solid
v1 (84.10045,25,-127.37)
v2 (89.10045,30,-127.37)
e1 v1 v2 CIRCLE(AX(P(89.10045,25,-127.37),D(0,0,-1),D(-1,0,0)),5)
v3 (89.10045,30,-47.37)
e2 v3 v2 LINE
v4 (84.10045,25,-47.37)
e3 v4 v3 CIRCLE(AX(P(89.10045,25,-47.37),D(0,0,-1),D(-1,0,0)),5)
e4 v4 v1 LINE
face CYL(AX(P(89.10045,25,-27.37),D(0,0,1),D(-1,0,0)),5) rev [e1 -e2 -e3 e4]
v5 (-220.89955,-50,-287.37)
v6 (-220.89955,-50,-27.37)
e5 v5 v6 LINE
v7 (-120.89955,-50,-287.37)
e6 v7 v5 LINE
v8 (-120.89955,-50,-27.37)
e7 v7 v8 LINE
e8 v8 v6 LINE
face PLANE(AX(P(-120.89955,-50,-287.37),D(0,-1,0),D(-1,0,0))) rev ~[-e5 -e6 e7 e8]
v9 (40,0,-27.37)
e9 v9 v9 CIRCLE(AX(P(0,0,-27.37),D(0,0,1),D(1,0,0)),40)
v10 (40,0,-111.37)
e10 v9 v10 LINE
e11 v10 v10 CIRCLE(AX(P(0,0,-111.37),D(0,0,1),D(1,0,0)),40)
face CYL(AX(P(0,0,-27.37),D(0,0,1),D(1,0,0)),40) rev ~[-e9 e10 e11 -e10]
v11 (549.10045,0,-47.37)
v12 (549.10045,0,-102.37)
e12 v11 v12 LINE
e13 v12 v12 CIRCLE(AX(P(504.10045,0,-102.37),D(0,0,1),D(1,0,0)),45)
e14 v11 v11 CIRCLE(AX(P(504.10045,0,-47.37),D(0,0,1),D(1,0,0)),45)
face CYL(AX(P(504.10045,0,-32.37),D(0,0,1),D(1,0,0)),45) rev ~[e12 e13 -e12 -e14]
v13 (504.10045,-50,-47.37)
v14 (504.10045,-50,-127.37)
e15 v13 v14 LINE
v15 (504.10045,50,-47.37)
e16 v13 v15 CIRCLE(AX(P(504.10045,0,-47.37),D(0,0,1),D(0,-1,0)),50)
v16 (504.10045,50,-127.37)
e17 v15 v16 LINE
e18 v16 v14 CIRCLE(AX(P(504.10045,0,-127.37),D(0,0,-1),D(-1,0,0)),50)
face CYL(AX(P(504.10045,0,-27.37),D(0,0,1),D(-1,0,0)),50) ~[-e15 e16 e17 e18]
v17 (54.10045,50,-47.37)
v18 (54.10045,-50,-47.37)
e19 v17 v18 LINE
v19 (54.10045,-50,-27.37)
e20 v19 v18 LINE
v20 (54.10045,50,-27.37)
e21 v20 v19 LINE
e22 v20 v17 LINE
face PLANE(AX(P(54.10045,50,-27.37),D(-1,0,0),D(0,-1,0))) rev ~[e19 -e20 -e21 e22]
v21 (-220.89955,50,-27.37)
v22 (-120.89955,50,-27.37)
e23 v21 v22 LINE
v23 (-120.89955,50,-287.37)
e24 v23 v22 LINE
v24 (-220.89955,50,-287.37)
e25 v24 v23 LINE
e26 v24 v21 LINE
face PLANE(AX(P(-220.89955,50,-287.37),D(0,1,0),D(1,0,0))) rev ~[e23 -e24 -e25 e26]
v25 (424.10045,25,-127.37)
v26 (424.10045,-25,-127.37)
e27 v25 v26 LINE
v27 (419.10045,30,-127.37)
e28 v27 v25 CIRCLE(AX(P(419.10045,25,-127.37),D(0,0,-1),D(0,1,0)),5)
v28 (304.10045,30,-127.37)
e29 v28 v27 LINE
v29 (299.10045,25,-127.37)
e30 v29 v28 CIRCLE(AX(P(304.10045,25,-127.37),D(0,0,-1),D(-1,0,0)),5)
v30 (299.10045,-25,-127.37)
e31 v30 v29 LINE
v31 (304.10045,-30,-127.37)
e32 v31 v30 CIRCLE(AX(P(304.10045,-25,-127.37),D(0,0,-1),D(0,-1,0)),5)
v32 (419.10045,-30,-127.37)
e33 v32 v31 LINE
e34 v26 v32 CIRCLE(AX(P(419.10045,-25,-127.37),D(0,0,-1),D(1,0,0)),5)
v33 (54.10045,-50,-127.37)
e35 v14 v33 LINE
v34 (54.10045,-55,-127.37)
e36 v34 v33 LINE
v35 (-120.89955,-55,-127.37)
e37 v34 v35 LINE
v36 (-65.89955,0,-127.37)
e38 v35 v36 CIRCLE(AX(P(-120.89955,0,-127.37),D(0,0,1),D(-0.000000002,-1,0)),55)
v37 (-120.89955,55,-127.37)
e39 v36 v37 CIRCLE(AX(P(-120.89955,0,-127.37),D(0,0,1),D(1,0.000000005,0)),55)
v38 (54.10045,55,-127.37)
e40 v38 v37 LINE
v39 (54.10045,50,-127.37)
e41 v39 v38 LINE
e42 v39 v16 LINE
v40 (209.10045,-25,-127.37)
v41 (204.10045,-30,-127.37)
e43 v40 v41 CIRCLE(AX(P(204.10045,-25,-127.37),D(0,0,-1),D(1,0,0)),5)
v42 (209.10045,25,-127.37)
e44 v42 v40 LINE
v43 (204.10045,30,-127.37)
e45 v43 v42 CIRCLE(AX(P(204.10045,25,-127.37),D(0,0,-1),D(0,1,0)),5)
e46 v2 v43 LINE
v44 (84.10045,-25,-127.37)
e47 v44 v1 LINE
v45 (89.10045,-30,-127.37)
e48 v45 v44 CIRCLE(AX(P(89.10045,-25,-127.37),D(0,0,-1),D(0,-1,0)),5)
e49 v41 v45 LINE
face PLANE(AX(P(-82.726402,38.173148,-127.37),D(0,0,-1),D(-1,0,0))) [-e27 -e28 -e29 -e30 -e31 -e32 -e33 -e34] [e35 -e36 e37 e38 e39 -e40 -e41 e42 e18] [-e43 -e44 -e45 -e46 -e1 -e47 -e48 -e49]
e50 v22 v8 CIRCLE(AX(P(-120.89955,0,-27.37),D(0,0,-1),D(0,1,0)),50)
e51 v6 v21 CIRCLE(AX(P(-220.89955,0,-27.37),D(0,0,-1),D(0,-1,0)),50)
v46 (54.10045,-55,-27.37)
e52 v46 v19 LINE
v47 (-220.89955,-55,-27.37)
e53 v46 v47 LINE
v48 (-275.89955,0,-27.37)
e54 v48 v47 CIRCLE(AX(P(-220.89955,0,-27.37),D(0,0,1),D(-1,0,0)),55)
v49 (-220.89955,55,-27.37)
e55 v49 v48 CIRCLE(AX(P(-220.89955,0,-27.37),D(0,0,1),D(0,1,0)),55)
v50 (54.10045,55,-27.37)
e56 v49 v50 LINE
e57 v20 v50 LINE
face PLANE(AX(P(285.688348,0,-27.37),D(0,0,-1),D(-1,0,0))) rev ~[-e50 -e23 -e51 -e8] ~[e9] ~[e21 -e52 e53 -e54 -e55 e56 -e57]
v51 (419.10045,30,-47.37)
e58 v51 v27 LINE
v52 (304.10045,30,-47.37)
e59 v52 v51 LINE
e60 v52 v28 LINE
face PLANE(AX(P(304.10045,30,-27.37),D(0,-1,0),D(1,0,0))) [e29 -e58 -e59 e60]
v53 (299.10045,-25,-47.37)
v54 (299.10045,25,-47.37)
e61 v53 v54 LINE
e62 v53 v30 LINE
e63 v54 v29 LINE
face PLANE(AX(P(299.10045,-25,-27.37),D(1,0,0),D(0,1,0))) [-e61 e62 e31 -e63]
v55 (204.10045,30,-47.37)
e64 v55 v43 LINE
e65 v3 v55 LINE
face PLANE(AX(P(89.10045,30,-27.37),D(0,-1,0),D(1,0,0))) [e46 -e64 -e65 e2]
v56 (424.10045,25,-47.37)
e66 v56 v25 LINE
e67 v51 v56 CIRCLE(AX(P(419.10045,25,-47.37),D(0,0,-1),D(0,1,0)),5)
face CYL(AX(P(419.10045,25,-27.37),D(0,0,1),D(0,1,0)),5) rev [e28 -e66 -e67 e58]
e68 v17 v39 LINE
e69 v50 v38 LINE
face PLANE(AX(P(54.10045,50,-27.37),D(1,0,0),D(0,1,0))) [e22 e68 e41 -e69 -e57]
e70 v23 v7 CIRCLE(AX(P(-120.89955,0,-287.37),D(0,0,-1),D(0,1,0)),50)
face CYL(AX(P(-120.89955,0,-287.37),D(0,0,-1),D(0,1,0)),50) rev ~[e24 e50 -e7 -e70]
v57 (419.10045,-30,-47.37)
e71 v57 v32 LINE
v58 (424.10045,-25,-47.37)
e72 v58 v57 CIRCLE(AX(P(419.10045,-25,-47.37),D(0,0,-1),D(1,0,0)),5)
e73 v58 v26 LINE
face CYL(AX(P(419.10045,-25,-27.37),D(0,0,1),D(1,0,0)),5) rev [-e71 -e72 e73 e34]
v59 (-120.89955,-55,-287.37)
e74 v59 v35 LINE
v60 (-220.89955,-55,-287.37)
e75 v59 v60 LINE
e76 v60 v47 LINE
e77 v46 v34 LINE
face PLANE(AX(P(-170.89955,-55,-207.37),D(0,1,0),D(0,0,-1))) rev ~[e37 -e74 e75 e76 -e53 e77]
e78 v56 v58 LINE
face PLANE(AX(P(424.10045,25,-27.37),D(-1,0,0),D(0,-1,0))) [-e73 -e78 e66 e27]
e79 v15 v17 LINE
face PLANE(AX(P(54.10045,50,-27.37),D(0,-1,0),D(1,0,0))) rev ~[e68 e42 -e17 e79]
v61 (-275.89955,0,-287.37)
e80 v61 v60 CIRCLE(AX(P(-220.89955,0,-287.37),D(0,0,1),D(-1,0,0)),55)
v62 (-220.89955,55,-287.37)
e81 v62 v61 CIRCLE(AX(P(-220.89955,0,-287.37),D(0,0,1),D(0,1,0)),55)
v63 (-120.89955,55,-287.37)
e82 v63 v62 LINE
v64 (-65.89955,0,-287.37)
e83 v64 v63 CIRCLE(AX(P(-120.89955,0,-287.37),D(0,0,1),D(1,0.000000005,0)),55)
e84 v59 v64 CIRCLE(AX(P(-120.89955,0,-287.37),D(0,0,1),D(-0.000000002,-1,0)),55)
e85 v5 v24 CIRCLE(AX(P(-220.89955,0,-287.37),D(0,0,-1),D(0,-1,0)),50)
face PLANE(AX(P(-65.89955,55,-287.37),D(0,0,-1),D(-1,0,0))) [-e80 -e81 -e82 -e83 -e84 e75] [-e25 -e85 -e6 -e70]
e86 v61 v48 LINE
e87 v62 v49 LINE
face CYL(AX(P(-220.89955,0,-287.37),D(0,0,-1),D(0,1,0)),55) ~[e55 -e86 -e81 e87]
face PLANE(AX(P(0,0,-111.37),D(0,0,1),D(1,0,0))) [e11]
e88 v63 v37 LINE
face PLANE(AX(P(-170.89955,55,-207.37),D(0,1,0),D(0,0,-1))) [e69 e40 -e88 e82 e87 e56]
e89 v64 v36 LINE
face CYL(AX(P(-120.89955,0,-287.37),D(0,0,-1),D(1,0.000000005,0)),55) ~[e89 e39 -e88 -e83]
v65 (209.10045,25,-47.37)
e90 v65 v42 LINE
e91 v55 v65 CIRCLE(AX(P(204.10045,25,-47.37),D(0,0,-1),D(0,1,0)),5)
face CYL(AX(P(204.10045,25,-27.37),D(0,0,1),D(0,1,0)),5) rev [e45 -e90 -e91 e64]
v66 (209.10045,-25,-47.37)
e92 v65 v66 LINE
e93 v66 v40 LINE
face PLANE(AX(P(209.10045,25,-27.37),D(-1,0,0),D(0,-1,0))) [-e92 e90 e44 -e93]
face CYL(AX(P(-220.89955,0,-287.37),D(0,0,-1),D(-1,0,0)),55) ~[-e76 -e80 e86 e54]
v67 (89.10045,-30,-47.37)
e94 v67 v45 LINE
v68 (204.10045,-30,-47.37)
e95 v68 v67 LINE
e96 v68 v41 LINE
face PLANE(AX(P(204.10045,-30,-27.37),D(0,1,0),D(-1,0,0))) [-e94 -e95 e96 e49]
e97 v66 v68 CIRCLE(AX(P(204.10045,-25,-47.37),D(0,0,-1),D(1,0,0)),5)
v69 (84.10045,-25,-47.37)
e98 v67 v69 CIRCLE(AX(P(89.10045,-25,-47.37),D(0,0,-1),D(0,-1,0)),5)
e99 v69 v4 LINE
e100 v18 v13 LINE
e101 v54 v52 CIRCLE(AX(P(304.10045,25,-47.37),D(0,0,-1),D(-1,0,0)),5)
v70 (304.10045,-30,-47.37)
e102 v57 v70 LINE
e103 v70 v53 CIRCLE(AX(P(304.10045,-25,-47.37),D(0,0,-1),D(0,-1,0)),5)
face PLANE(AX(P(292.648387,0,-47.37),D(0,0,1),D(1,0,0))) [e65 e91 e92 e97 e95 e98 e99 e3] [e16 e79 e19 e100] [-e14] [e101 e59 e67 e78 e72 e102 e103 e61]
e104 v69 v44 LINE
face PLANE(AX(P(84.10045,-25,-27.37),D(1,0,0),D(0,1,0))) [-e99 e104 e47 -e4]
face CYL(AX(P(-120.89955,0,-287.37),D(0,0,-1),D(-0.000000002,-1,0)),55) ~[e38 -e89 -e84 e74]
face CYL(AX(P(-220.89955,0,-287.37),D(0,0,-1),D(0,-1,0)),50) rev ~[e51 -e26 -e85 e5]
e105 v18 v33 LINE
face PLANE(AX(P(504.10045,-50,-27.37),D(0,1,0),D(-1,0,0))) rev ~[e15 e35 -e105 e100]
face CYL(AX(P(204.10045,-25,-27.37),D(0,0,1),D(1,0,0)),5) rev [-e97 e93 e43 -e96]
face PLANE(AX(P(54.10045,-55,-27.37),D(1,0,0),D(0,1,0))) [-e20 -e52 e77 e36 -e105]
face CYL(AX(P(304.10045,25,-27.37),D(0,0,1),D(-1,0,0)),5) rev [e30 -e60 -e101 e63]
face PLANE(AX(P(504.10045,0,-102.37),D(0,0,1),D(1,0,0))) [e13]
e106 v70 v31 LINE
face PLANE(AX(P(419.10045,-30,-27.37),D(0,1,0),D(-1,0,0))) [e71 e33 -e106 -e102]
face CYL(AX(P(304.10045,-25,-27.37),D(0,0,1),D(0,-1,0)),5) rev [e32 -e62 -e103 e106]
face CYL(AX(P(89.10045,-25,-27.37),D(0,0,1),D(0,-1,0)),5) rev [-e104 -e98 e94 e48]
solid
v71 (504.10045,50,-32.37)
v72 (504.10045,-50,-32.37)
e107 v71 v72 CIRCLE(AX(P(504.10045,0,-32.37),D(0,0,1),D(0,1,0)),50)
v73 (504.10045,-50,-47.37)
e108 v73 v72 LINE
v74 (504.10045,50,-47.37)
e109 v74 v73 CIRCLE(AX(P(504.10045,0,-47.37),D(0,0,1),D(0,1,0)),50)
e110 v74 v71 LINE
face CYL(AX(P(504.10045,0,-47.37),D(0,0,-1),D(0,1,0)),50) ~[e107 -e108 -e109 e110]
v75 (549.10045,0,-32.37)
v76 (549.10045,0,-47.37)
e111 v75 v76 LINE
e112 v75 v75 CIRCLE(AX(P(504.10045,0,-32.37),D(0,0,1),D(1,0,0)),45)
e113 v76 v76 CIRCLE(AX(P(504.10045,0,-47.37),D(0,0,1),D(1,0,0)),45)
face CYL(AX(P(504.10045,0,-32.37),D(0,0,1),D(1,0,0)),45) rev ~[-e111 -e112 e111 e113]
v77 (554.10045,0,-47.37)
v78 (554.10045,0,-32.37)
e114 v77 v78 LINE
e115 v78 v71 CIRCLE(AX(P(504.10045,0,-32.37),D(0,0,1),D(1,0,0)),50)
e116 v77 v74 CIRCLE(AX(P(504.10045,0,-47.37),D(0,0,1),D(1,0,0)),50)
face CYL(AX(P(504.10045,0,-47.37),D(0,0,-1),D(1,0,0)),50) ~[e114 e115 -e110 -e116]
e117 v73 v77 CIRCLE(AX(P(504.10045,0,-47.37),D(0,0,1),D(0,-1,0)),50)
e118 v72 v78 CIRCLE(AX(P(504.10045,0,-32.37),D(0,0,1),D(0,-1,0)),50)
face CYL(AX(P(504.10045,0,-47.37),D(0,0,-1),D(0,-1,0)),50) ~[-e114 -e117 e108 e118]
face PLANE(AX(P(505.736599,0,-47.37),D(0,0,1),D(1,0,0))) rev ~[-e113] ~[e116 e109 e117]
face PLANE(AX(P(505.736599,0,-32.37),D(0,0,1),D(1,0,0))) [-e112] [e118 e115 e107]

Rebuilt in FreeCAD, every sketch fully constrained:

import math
import FreeCAD as App
import Part
import Sketcher
from FreeCAD import Vector
Q = App.Units.Quantity

doc = App.newDocument("Part")
body = doc.addObject("PartDesign::Body", "Body")

sketch1 = doc.addObject("Sketcher::SketchObject", "Sketch")
body.addObject(sketch1)
sketch1.AttachmentSupport = (doc.YZ_Plane, [""])
sketch1.MapMode = "FlatFace"
sketch1.addGeometry(Part.LineSegment(Vector(50, 50, 0), Vector(50, 500, 0)), False)
sketch1.addGeometry(Part.ArcOfCircle(Part.Circle(Vector(0, 500, 0), Vector(0, 0, 1), 50), math.radians(0), math.radians(180)), False)
sketch1.addGeometry(Part.LineSegment(Vector(-50, 500, 0), Vector(-50, 50, 0)), False)
sketch1.addGeometry(Part.LineSegment(Vector(-50, 50, 0), Vector(-55, 50, 0)), False)
sketch1.addGeometry(Part.LineSegment(Vector(-55, 50, 0), Vector(-55, -280, 0)), False)
sketch1.addGeometry(Part.LineSegment(Vector(-55, -280, 0), Vector(55, -280, 0)), False)
sketch1.addGeometry(Part.LineSegment(Vector(55, -280, 0), Vector(55, 50, 0)), False)
sketch1.addGeometry(Part.LineSegment(Vector(55, 50, 0), Vector(50, 50, 0)), False)
sketch1.addConstraint(Sketcher.Constraint("Tangent", 0, 2, 1, 1))
sketch1.addConstraint(Sketcher.Constraint("Tangent", 1, 2, 2, 1))
sketch1.addConstraint(Sketcher.Constraint("Coincident", 2, 2, 3, 1))
sketch1.addConstraint(Sketcher.Constraint("Coincident", 3, 2, 4, 1))
sketch1.addConstraint(Sketcher.Constraint("Coincident", 4, 2, 5, 1))
sketch1.addConstraint(Sketcher.Constraint("Coincident", 5, 2, 6, 1))
sketch1.addConstraint(Sketcher.Constraint("Coincident", 6, 2, 7, 1))
sketch1.addConstraint(Sketcher.Constraint("Coincident", 7, 2, 0, 1))
sketch1.addConstraint(Sketcher.Constraint("Vertical", 0))
sketch1.addConstraint(Sketcher.Constraint("Vertical", 2))
sketch1.addConstraint(Sketcher.Constraint("Horizontal", 3))
sketch1.addConstraint(Sketcher.Constraint("Vertical", 4))
sketch1.addConstraint(Sketcher.Constraint("Horizontal", 5))
sketch1.addConstraint(Sketcher.Constraint("Vertical", 6))
sketch1.addConstraint(Sketcher.Constraint("Horizontal", 7))
sketch1.addConstraint(Sketcher.Constraint("Symmetric", 3, 2, 6, 2, -2))
sketch1.addConstraint(Sketcher.Constraint("PointOnObject", 1, 3, -2))
sketch1.addConstraint(Sketcher.Constraint("Radius", 1, Q("50 mm")))
sketch1.addConstraint(Sketcher.Constraint("DistanceX", 3, 2, 3, 1, Q("5 mm")))
sketch1.addConstraint(Sketcher.Constraint("DistanceY", 0, 1, 0, 2, Q("450 mm")))
sketch1.addConstraint(Sketcher.Constraint("DistanceY", 4, 2, 4, 1, Q("330 mm")))
sketch1.addConstraint(Sketcher.Constraint("DistanceY", -1, 1, 1, 3, Q("500 mm")))
pad1 = doc.addObject("PartDesign::Pad", "Pad")
body.addObject(pad1)
pad1.Profile = sketch1
pad1.Length = 100

sketch2 = doc.addObject("Sketcher::SketchObject", "Sketch001")
body.addObject(sketch2)
sketch2.AttachmentSupport = (doc.XZ_Plane, [""])
sketch2.MapMode = "FlatFace"
sketch2.AttachmentOffset = App.Placement(Vector(0, 0, -55), App.Rotation())
sketch2.addGeometry(Part.LineSegment(Vector(100, -280, 0), Vector(100, -70, 0)), False)
sketch2.addGeometry(Part.LineSegment(Vector(100, -70, 0), Vector(260, -70, 0)), False)
sketch2.addGeometry(Part.LineSegment(Vector(260, -70, 0), Vector(260, -280, 0)), False)
sketch2.addGeometry(Part.LineSegment(Vector(260, -280, 0), Vector(100, -280, 0)), False)
sketch2.addConstraint(Sketcher.Constraint("Coincident", 0, 2, 1, 1))
sketch2.addConstraint(Sketcher.Constraint("Coincident", 1, 2, 2, 1))
sketch2.addConstraint(Sketcher.Constraint("Coincident", 2, 2, 3, 1))
sketch2.addConstraint(Sketcher.Constraint("Coincident", 3, 2, 0, 1))
sketch2.addConstraint(Sketcher.Constraint("Vertical", 0))
sketch2.addConstraint(Sketcher.Constraint("Horizontal", 1))
sketch2.addConstraint(Sketcher.Constraint("Vertical", 2))
sketch2.addConstraint(Sketcher.Constraint("Horizontal", 3))
sketch2.addConstraint(Sketcher.Constraint("DistanceX", 1, 1, 1, 2, Q("160 mm")))
sketch2.addConstraint(Sketcher.Constraint("DistanceY", 0, 1, 0, 2, Q("210 mm")))
sketch2.addConstraint(Sketcher.Constraint("DistanceX", -1, 1, 0, 2, Q("100 mm")))
sketch2.addConstraint(Sketcher.Constraint("DistanceY", 0, 2, -1, 1, Q("70 mm")))
pad2 = doc.addObject("PartDesign::Pad", "Pad001")
body.addObject(pad2)
pad2.Profile = sketch2
pad2.Length = 110

sketch3 = doc.addObject("Sketcher::SketchObject", "Sketch002")
body.addObject(sketch3)
sketch3.AttachmentSupport = (doc.YZ_Plane, [""])
sketch3.MapMode = "FlatFace"
sketch3.AttachmentOffset = App.Placement(Vector(0, 0, 260), App.Rotation())
sketch3.addGeometry(Part.ArcOfCircle(Part.Circle(Vector(0, -225, 0), Vector(0, 0, 1), 55), math.radians(-90), math.radians(0)), False)
sketch3.addGeometry(Part.LineSegment(Vector(0, -280, 0), Vector(55, -280, 0)), False)
sketch3.addGeometry(Part.LineSegment(Vector(55, -280, 0), Vector(55, -225, 0)), False)
sketch3.addGeometry(Part.ArcOfCircle(Part.Circle(Vector(0, -225, 0), Vector(0, 0, 1), 55), math.radians(-180), math.radians(-90)), False)
sketch3.addGeometry(Part.LineSegment(Vector(-55, -225, 0), Vector(-55, -280, 0)), False)
sketch3.addGeometry(Part.LineSegment(Vector(-55, -280, 0), Vector(0, -280, 0)), False)
sketch3.addConstraint(Sketcher.Constraint("Tangent", 0, 1, 1, 1))
sketch3.addConstraint(Sketcher.Constraint("Coincident", 1, 2, 2, 1))
sketch3.addConstraint(Sketcher.Constraint("Tangent", 2, 2, 0, 2))
sketch3.addConstraint(Sketcher.Constraint("Tangent", 3, 1, 4, 1))
sketch3.addConstraint(Sketcher.Constraint("Coincident", 4, 2, 5, 1))
sketch3.addConstraint(Sketcher.Constraint("Tangent", 5, 2, 3, 2))
sketch3.addConstraint(Sketcher.Constraint("Horizontal", 1))
sketch3.addConstraint(Sketcher.Constraint("Vertical", 2))
sketch3.addConstraint(Sketcher.Constraint("Vertical", 4))
sketch3.addConstraint(Sketcher.Constraint("Horizontal", 5))
sketch3.addConstraint(Sketcher.Constraint("Coincident", 3, 3, 0, 3))
sketch3.addConstraint(Sketcher.Constraint("Equal", 0, 3))
sketch3.addConstraint(Sketcher.Constraint("PointOnObject", 0, 3, -2))
sketch3.addConstraint(Sketcher.Constraint("Radius", 0, Q("55 mm")))
sketch3.addConstraint(Sketcher.Constraint("DistanceY", 0, 3, -1, 1, Q("225 mm")))
pocket1 = doc.addObject("PartDesign::Pocket", "Pocket")
body.addObject(pocket1)
pocket1.Profile = sketch3
pocket1.Length = 260

sketch4 = doc.addObject("Sketcher::SketchObject", "Sketch003")
body.addObject(sketch4)
sketch4.AttachmentSupport = (doc.YZ_Plane, [""])
sketch4.MapMode = "FlatFace"
sketch4.AttachmentOffset = App.Placement(Vector(0, 0, 260), App.Rotation())
sketch4.addGeometry(Part.LineSegment(Vector(55, -70, 0), Vector(0, -70, 0)), False)
sketch4.addGeometry(Part.ArcOfCircle(Part.Circle(Vector(0, -125, 0), Vector(0, 0, 1), 55), math.radians(0), math.radians(90)), False)
sketch4.addGeometry(Part.LineSegment(Vector(55, -125, 0), Vector(55, -70, 0)), False)
sketch4.addGeometry(Part.LineSegment(Vector(0, -70, 0), Vector(-55, -70, 0)), False)
sketch4.addGeometry(Part.LineSegment(Vector(-55, -70, 0), Vector(-55, -125, 0)), False)
sketch4.addGeometry(Part.ArcOfCircle(Part.Circle(Vector(0, -125, 0), Vector(0, 0, 1), 55), math.radians(90), math.radians(180)), False)
sketch4.addConstraint(Sketcher.Constraint("Tangent", 0, 2, 1, 2))
sketch4.addConstraint(Sketcher.Constraint("Tangent", 1, 1, 2, 1))
sketch4.addConstraint(Sketcher.Constraint("Coincident", 2, 2, 0, 1))
sketch4.addConstraint(Sketcher.Constraint("Coincident", 3, 2, 4, 1))
sketch4.addConstraint(Sketcher.Constraint("Tangent", 4, 2, 5, 2))
sketch4.addConstraint(Sketcher.Constraint("Tangent", 5, 1, 3, 1))
sketch4.addConstraint(Sketcher.Constraint("Horizontal", 0))
sketch4.addConstraint(Sketcher.Constraint("Vertical", 2))
sketch4.addConstraint(Sketcher.Constraint("Horizontal", 3))
sketch4.addConstraint(Sketcher.Constraint("Vertical", 4))
sketch4.addConstraint(Sketcher.Constraint("Coincident", 5, 3, 1, 3))
sketch4.addConstraint(Sketcher.Constraint("Equal", 1, 5))
sketch4.addConstraint(Sketcher.Constraint("PointOnObject", 1, 3, -2))
sketch4.addConstraint(Sketcher.Constraint("Radius", 1, Q("55 mm")))
sketch4.addConstraint(Sketcher.Constraint("DistanceY", 1, 3, -1, 1, Q("125 mm")))
pocket2 = doc.addObject("PartDesign::Pocket", "Pocket001")
body.addObject(pocket2)
pocket2.Profile = sketch4
pocket2.Length = 160

sketch5 = doc.addObject("Sketcher::SketchObject", "Sketch004")
body.addObject(sketch5)
sketch5.AttachmentSupport = (doc.YZ_Plane, [""])
sketch5.MapMode = "FlatFace"
sketch5.addGeometry(Part.LineSegment(Vector(30, 200, 0), Vector(30, 85, 0)), False)
sketch5.addGeometry(Part.ArcOfCircle(Part.Circle(Vector(25, 85, 0), Vector(0, 0, 1), 5), math.radians(-90), math.radians(0)), False)
sketch5.addGeometry(Part.LineSegment(Vector(25, 80, 0), Vector(-25, 80, 0)), False)
sketch5.addGeometry(Part.ArcOfCircle(Part.Circle(Vector(-25, 85, 0), Vector(0, 0, 1), 5), math.radians(180), math.radians(270)), False)
sketch5.addGeometry(Part.LineSegment(Vector(-30, 85, 0), Vector(-30, 200, 0)), False)
sketch5.addGeometry(Part.ArcOfCircle(Part.Circle(Vector(-25, 200, 0), Vector(0, 0, 1), 5), math.radians(90), math.radians(180)), False)
sketch5.addGeometry(Part.LineSegment(Vector(-25, 205, 0), Vector(25, 205, 0)), False)
sketch5.addGeometry(Part.ArcOfCircle(Part.Circle(Vector(25, 200, 0), Vector(0, 0, 1), 5), math.radians(0), math.radians(90)), False)
sketch5.addGeometry(Part.LineSegment(Vector(-30, 300, 0), Vector(-30, 415, 0)), False)
sketch5.addGeometry(Part.ArcOfCircle(Part.Circle(Vector(-25, 415, 0), Vector(0, 0, 1), 5), math.radians(90), math.radians(180)), False)
sketch5.addGeometry(Part.LineSegment(Vector(-25, 420, 0), Vector(25, 420, 0)), False)
sketch5.addGeometry(Part.ArcOfCircle(Part.Circle(Vector(25, 415, 0), Vector(0, 0, 1), 5), math.radians(0), math.radians(90)), False)
sketch5.addGeometry(Part.LineSegment(Vector(30, 415, 0), Vector(30, 300, 0)), False)
sketch5.addGeometry(Part.ArcOfCircle(Part.Circle(Vector(25, 300, 0), Vector(0, 0, 1), 5), math.radians(-90), math.radians(0)), False)
sketch5.addGeometry(Part.LineSegment(Vector(25, 295, 0), Vector(-25, 295, 0)), False)
sketch5.addGeometry(Part.ArcOfCircle(Part.Circle(Vector(-25, 300, 0), Vector(0, 0, 1), 5), math.radians(180), math.radians(270)), False)
sketch5.addConstraint(Sketcher.Constraint("Tangent", 0, 2, 1, 2))
sketch5.addConstraint(Sketcher.Constraint("Tangent", 1, 1, 2, 1))
sketch5.addConstraint(Sketcher.Constraint("Tangent", 2, 2, 3, 2))
sketch5.addConstraint(Sketcher.Constraint("Tangent", 3, 1, 4, 1))
sketch5.addConstraint(Sketcher.Constraint("Tangent", 4, 2, 5, 2))
sketch5.addConstraint(Sketcher.Constraint("Tangent", 5, 1, 6, 1))
sketch5.addConstraint(Sketcher.Constraint("Tangent", 6, 2, 7, 2))
sketch5.addConstraint(Sketcher.Constraint("Tangent", 7, 1, 0, 1))
sketch5.addConstraint(Sketcher.Constraint("Tangent", 8, 2, 9, 2))
sketch5.addConstraint(Sketcher.Constraint("Tangent", 9, 1, 10, 1))
sketch5.addConstraint(Sketcher.Constraint("Tangent", 10, 2, 11, 2))
sketch5.addConstraint(Sketcher.Constraint("Tangent", 11, 1, 12, 1))
sketch5.addConstraint(Sketcher.Constraint("Tangent", 12, 2, 13, 2))
sketch5.addConstraint(Sketcher.Constraint("Tangent", 13, 1, 14, 1))
sketch5.addConstraint(Sketcher.Constraint("Tangent", 14, 2, 15, 2))
sketch5.addConstraint(Sketcher.Constraint("Tangent", 15, 1, 8, 1))
sketch5.addConstraint(Sketcher.Constraint("Vertical", 0))
sketch5.addConstraint(Sketcher.Constraint("Horizontal", 2))
sketch5.addConstraint(Sketcher.Constraint("Vertical", 4))
sketch5.addConstraint(Sketcher.Constraint("Horizontal", 6))
sketch5.addConstraint(Sketcher.Constraint("Vertical", 8))
sketch5.addConstraint(Sketcher.Constraint("Horizontal", 10))
sketch5.addConstraint(Sketcher.Constraint("Vertical", 12))
sketch5.addConstraint(Sketcher.Constraint("Horizontal", 14))
sketch5.addConstraint(Sketcher.Constraint("Equal", 1, 3))
sketch5.addConstraint(Sketcher.Constraint("Equal", 3, 5))
sketch5.addConstraint(Sketcher.Constraint("Equal", 5, 7))
sketch5.addConstraint(Sketcher.Constraint("Equal", 7, 9))
sketch5.addConstraint(Sketcher.Constraint("Equal", 9, 11))
sketch5.addConstraint(Sketcher.Constraint("Equal", 11, 13))
sketch5.addConstraint(Sketcher.Constraint("Equal", 13, 15))
sketch5.addConstraint(Sketcher.Constraint("Vertical", 5, 3, 9, 3))
sketch5.addConstraint(Sketcher.Constraint("Vertical", 7, 3, 11, 3))
sketch5.addConstraint(Sketcher.Constraint("Equal", 4, 8))
sketch5.addConstraint(Sketcher.Constraint("Radius", 1, Q("5 mm")))
sketch5.addConstraint(Sketcher.Constraint("DistanceX", 2, 2, 2, 1, Q("50 mm")))
sketch5.addConstraint(Sketcher.Constraint("DistanceY", 0, 2, 0, 1, Q("115 mm")))
sketch5.addConstraint(Sketcher.Constraint("DistanceX", -1, 1, 1, 3, Q("25 mm")))
sketch5.addConstraint(Sketcher.Constraint("DistanceY", -1, 1, 1, 3, Q("85 mm")))
sketch5.addConstraint(Sketcher.Constraint("DistanceY", -1, 1, 9, 3, Q("415 mm")))
pocket3 = doc.addObject("PartDesign::Pocket", "Pocket002")
body.addObject(pocket3)
pocket3.Profile = sketch5
pocket3.Length = 100
pocket3.Reversed = True
body2 = doc.addObject("PartDesign::Body", "Body001")
doc.recompute()

body.Placement = App.Placement(Vector(-13.739488, 0, 255.266203), App.Rotation(Vector(0, 1, 0), 86))
boolean = doc.addObject("PartDesign::Boolean", "Boolean")
body2.addObject(boolean)
boolean.Type = "Fuse"
boolean.addObjects([body])

sketch6 = doc.addObject("Sketcher::SketchObject", "Sketch005")
body2.addObject(sketch6)
sketch6.Placement = App.Placement(Vector(-17.82995, 0, 254.98017), App.Rotation(Vector(0.99756405, 0, 0.069756474), Vector(0, 1, 0), Vector(-0.069756474, 0, 0.99756405), "ZXY"))
sketch6.addGeometry(Part.Circle(Vector(0, 0, 0), Vector(0, 0, 1), 40), False)
sketch6.addConstraint(Sketcher.Constraint("Coincident", 0, 3, -1, 1))
sketch6.addConstraint(Sketcher.Constraint("Diameter", 0, Q("80 mm")))
pocket4 = doc.addObject("PartDesign::Pocket", "Pocket003")
body2.addObject(pocket4)
pocket4.Profile = sketch6
pocket4.Length = 84
body3 = doc.addObject("PartDesign::Body", "Body002")
doc.recompute()

body2.Placement = App.Placement(Vector(17.82995, 0, -254.98017), App.Rotation(Vector(0, 0, 1), 0))
boolean2 = doc.addObject("PartDesign::Boolean", "Boolean001")
body3.addObject(boolean2)
boolean2.Type = "Fuse"
boolean2.addObjects([body2])

sketch7 = doc.addObject("Sketcher::SketchObject", "Sketch006")
body3.addObject(sketch7)
sketch7.Placement = App.Placement(Vector(0, 0, 0), App.Rotation(Vector(0.99756405, 0, 0.069756474), Vector(0, 1, 0), Vector(-0.069756474, 0, 0.99756405), "ZXY"))
sketch7.addGeometry(Part.LineSegment(Vector(54, 50, 0), Vector(54, -50, 0)), False)
sketch7.addGeometry(Part.LineSegment(Vector(54, -50, 0), Vector(504, -50, 0)), False)
sketch7.addGeometry(Part.ArcOfCircle(Part.Circle(Vector(504, 0, 0), Vector(0, 0, 1), 50), math.radians(-90), math.radians(90)), False)
sketch7.addGeometry(Part.LineSegment(Vector(504, 50, 0), Vector(54, 50, 0)), False)
sketch7.addGeometry(Part.LineSegment(Vector(209, 25, 0), Vector(209, -25, 0)), False)
sketch7.addGeometry(Part.ArcOfCircle(Part.Circle(Vector(204, -25, 0), Vector(0, 0, 1), 5), math.radians(-90), math.radians(0)), False)
sketch7.addGeometry(Part.LineSegment(Vector(204, -30, 0), Vector(89, -30, 0)), False)
sketch7.addGeometry(Part.ArcOfCircle(Part.Circle(Vector(89, -25, 0), Vector(0, 0, 1), 5), math.radians(180), math.radians(270)), False)
sketch7.addGeometry(Part.LineSegment(Vector(84, -25, 0), Vector(84, 25, 0)), False)
sketch7.addGeometry(Part.ArcOfCircle(Part.Circle(Vector(89, 25, 0), Vector(0, 0, 1), 5), math.radians(90), math.radians(180)), False)
sketch7.addGeometry(Part.LineSegment(Vector(89, 30, 0), Vector(204, 30, 0)), False)
sketch7.addGeometry(Part.ArcOfCircle(Part.Circle(Vector(204, 25, 0), Vector(0, 0, 1), 5), math.radians(0), math.radians(90)), False)
sketch7.addGeometry(Part.LineSegment(Vector(424, 25, 0), Vector(424, -25, 0)), False)
sketch7.addGeometry(Part.ArcOfCircle(Part.Circle(Vector(419, -25, 0), Vector(0, 0, 1), 5), math.radians(-90), math.radians(0)), False)
sketch7.addGeometry(Part.LineSegment(Vector(419, -30, 0), Vector(304, -30, 0)), False)
sketch7.addGeometry(Part.ArcOfCircle(Part.Circle(Vector(304, -25, 0), Vector(0, 0, 1), 5), math.radians(180), math.radians(270)), False)
sketch7.addGeometry(Part.LineSegment(Vector(299, -25, 0), Vector(299, 25, 0)), False)
sketch7.addGeometry(Part.ArcOfCircle(Part.Circle(Vector(304, 25, 0), Vector(0, 0, 1), 5), math.radians(90), math.radians(180)), False)
sketch7.addGeometry(Part.LineSegment(Vector(304, 30, 0), Vector(419, 30, 0)), False)
sketch7.addGeometry(Part.ArcOfCircle(Part.Circle(Vector(419, 25, 0), Vector(0, 0, 1), 5), math.radians(0), math.radians(90)), False)
sketch7.addConstraint(Sketcher.Constraint("Coincident", 0, 2, 1, 1))
sketch7.addConstraint(Sketcher.Constraint("Tangent", 1, 2, 2, 1))
sketch7.addConstraint(Sketcher.Constraint("Tangent", 2, 2, 3, 1))
sketch7.addConstraint(Sketcher.Constraint("Coincident", 3, 2, 0, 1))
sketch7.addConstraint(Sketcher.Constraint("Tangent", 4, 2, 5, 2))
sketch7.addConstraint(Sketcher.Constraint("Tangent", 5, 1, 6, 1))
sketch7.addConstraint(Sketcher.Constraint("Tangent", 6, 2, 7, 2))
sketch7.addConstraint(Sketcher.Constraint("Tangent", 7, 1, 8, 1))
sketch7.addConstraint(Sketcher.Constraint("Tangent", 8, 2, 9, 2))
sketch7.addConstraint(Sketcher.Constraint("Tangent", 9, 1, 10, 1))
sketch7.addConstraint(Sketcher.Constraint("Tangent", 10, 2, 11, 2))
sketch7.addConstraint(Sketcher.Constraint("Tangent", 11, 1, 4, 1))
sketch7.addConstraint(Sketcher.Constraint("Tangent", 12, 2, 13, 2))
sketch7.addConstraint(Sketcher.Constraint("Tangent", 13, 1, 14, 1))
sketch7.addConstraint(Sketcher.Constraint("Tangent", 14, 2, 15, 2))
sketch7.addConstraint(Sketcher.Constraint("Tangent", 15, 1, 16, 1))
sketch7.addConstraint(Sketcher.Constraint("Tangent", 16, 2, 17, 2))
sketch7.addConstraint(Sketcher.Constraint("Tangent", 17, 1, 18, 1))
sketch7.addConstraint(Sketcher.Constraint("Tangent", 18, 2, 19, 2))
sketch7.addConstraint(Sketcher.Constraint("Tangent", 19, 1, 12, 1))
sketch7.addConstraint(Sketcher.Constraint("Vertical", 0))
sketch7.addConstraint(Sketcher.Constraint("Horizontal", 1))
sketch7.addConstraint(Sketcher.Constraint("Horizontal", 3))
sketch7.addConstraint(Sketcher.Constraint("Vertical", 4))
sketch7.addConstraint(Sketcher.Constraint("Horizontal", 6))
sketch7.addConstraint(Sketcher.Constraint("Vertical", 8))
sketch7.addConstraint(Sketcher.Constraint("Horizontal", 10))
sketch7.addConstraint(Sketcher.Constraint("Vertical", 12))
sketch7.addConstraint(Sketcher.Constraint("Horizontal", 14))
sketch7.addConstraint(Sketcher.Constraint("Vertical", 16))
sketch7.addConstraint(Sketcher.Constraint("Horizontal", 18))
sketch7.addConstraint(Sketcher.Constraint("Equal", 5, 7))
sketch7.addConstraint(Sketcher.Constraint("Equal", 7, 9))
sketch7.addConstraint(Sketcher.Constraint("Equal", 9, 11))
sketch7.addConstraint(Sketcher.Constraint("Equal", 11, 13))
sketch7.addConstraint(Sketcher.Constraint("Equal", 13, 15))
sketch7.addConstraint(Sketcher.Constraint("Equal", 15, 17))
sketch7.addConstraint(Sketcher.Constraint("Equal", 17, 19))
sketch7.addConstraint(Sketcher.Constraint("PointOnObject", 2, 3, -1))
sketch7.addConstraint(Sketcher.Constraint("Horizontal", 7, 3, 13, 3))
sketch7.addConstraint(Sketcher.Constraint("Horizontal", 11, 3, 17, 3))
sketch7.addConstraint(Sketcher.Constraint("Equal", 10, 14))
sketch7.addConstraint(Sketcher.Constraint("Radius", 2, Q("50 mm")))
sketch7.addConstraint(Sketcher.Constraint("Radius", 5, Q("5 mm")))
sketch7.addConstraint(Sketcher.Constraint("DistanceX", 1, 1, 1, 2, Q("450 mm")))
sketch7.addConstraint(Sketcher.Constraint("DistanceX", 6, 2, 6, 1, Q("115 mm")))
sketch7.addConstraint(Sketcher.Constraint("DistanceY", 4, 2, 4, 1, Q("50 mm")))
sketch7.addConstraint(Sketcher.Constraint("DistanceY", 5, 3, -1, 1, Q("25 mm")))
sketch7.addConstraint(Sketcher.Constraint("DistanceX", 5, 3, 2, 3, Q("300 mm")))
sketch7.addConstraint(Sketcher.Constraint("DistanceX", 13, 3, 2, 3, Q("85 mm")))
sketch7.addConstraint(Sketcher.Constraint("DistanceX", -1, 1, 2, 3, Q("504.10045 mm")))
pocket5 = doc.addObject("PartDesign::Pocket", "Pocket004")
body3.addObject(pocket5)
pocket5.Profile = sketch7
pocket5.Length = 20
body4 = doc.addObject("PartDesign::Body", "Body003")

sketch8 = doc.addObject("Sketcher::SketchObject", "Sketch007")
body4.addObject(sketch8)
sketch8.Placement = App.Placement(Vector(1.395129, 0, -19.951281), App.Rotation(Vector(0.99756405, 0, 0.069756474), Vector(0, 1, 0), Vector(-0.069756474, 0, 0.99756405), "ZXY"))
sketch8.addGeometry(Part.ArcOfCircle(Part.Circle(Vector(504, 0, 0), Vector(0, 0, 1), 50), math.radians(0), math.radians(90)), False)
sketch8.addGeometry(Part.ArcOfCircle(Part.Circle(Vector(504, 0, 0), Vector(0, 0, 1), 50), math.radians(90), math.radians(270)), False)
sketch8.addGeometry(Part.ArcOfCircle(Part.Circle(Vector(504, 0, 0), Vector(0, 0, 1), 50), math.radians(-90), math.radians(0)), False)
sketch8.addConstraint(Sketcher.Constraint("Tangent", 0, 2, 1, 1))
sketch8.addConstraint(Sketcher.Constraint("Tangent", 1, 2, 2, 1))
sketch8.addConstraint(Sketcher.Constraint("Tangent", 2, 2, 0, 1))
sketch8.addConstraint(Sketcher.Constraint("Symmetric", 0, 2, 1, 2, -1))
sketch8.addConstraint(Sketcher.Constraint("PointOnObject", 2, 2, -1))
sketch8.addConstraint(Sketcher.Constraint("Vertical", 2, 3, 0, 2))
sketch8.addConstraint(Sketcher.Constraint("Radius", 0, Q("50 mm")))
sketch8.addConstraint(Sketcher.Constraint("DistanceX", -1, 1, 0, 3, Q("504.10045 mm")))
pad3 = doc.addObject("PartDesign::Pad", "Pad002")
body4.addObject(pad3)
pad3.Profile = sketch8
pad3.Length = 15
body5 = doc.addObject("PartDesign::Body", "Body004")
doc.recompute()

body3.Placement = App.Placement(Vector(0, 0, 0), App.Rotation(Vector(0, 1, 0), 4))
boolean3 = doc.addObject("PartDesign::Boolean", "Boolean002")
body5.addObject(boolean3)
boolean3.Type = "Fuse"
boolean3.addObjects([body3])
body6 = doc.addObject("PartDesign::Body", "Body005")
doc.recompute()

body4.Placement = App.Placement(Vector(0, 0, 0), App.Rotation(Vector(0, 1, 0), 4))
boolean4 = doc.addObject("PartDesign::Boolean", "Boolean003")
body6.addObject(boolean4)
boolean4.Type = "Fuse"
boolean4.addObjects([body4])
body7 = doc.addObject("PartDesign::Body", "Body006")
doc.recompute()

body5.Placement = App.Placement(Vector(0, 0, -27.37), App.Rotation(Vector(0, 0, 1), 0))
boolean5 = doc.addObject("PartDesign::Boolean", "Boolean004")
body7.addObject(boolean5)
boolean5.Type = "Fuse"
boolean5.addObjects([body5])

sketch9 = doc.addObject("Sketcher::SketchObject", "Sketch008")
body7.addObject(sketch9)
sketch9.AttachmentSupport = (doc.getObject("XY_Plane006"), [""])
sketch9.MapMode = "FlatFace"
sketch9.AttachmentOffset = App.Placement(Vector(0, 0, -287.37), App.Rotation())
sketch9.addGeometry(Part.LineSegment(Vector(-121, -50, 0), Vector(-221, -50, 0)), False)
sketch9.addGeometry(Part.ArcOfCircle(Part.Circle(Vector(-221, 0, 0), Vector(0, 0, 1), 50), math.radians(90), math.radians(270)), False)
sketch9.addGeometry(Part.LineSegment(Vector(-221, 50, 0), Vector(-121, 50, 0)), False)
sketch9.addGeometry(Part.ArcOfCircle(Part.Circle(Vector(-121, 0, 0), Vector(0, 0, 1), 50), math.radians(-90), math.radians(90)), False)
sketch9.addConstraint(Sketcher.Constraint("Tangent", 0, 2, 1, 2))
sketch9.addConstraint(Sketcher.Constraint("Tangent", 1, 1, 2, 1))
sketch9.addConstraint(Sketcher.Constraint("Tangent", 2, 2, 3, 2))
sketch9.addConstraint(Sketcher.Constraint("Tangent", 3, 1, 0, 1))
sketch9.addConstraint(Sketcher.Constraint("Horizontal", 0))
sketch9.addConstraint(Sketcher.Constraint("Horizontal", 2))
sketch9.addConstraint(Sketcher.Constraint("PointOnObject", 1, 3, -1))
sketch9.addConstraint(Sketcher.Constraint("Radius", 1, Q("50 mm")))
sketch9.addConstraint(Sketcher.Constraint("DistanceX", 0, 2, 0, 1, Q("100 mm")))
sketch9.addConstraint(Sketcher.Constraint("DistanceX", 1, 3, -1, 1, Q("220.89955 mm")))
pocket6 = doc.addObject("PartDesign::Pocket", "Pocket005")
body7.addObject(pocket6)
pocket6.Profile = sketch9
pocket6.Length = 270
pocket6.Reversed = True
body8 = doc.addObject("PartDesign::Body", "Body007")
doc.recompute()

body6.Placement = App.Placement(Vector(0, 0, -27.37), App.Rotation(Vector(0, 0, 1), 0))
boolean6 = doc.addObject("PartDesign::Boolean", "Boolean005")
body8.addObject(boolean6)
boolean6.Type = "Fuse"
boolean6.addObjects([body6])
body9 = doc.addObject("PartDesign::Body", "Body008")

sketch10 = doc.addObject("Sketcher::SketchObject", "Sketch009")
body9.addObject(sketch10)
sketch10.AttachmentSupport = (doc.getObject("XY_Plane008"), [""])
sketch10.MapMode = "FlatFace"
sketch10.AttachmentOffset = App.Placement(Vector(0, 0, -32.37), App.Rotation())
sketch10.addGeometry(Part.Circle(Vector(504, 0, 0), Vector(0, 0, 1), 45), False)
sketch10.addConstraint(Sketcher.Constraint("PointOnObject", 0, 3, -1))
sketch10.addConstraint(Sketcher.Constraint("Diameter", 0, Q("90 mm")))
sketch10.addConstraint(Sketcher.Constraint("DistanceX", -1, 1, 0, 3, Q("504.10045 mm")))
pad4 = doc.addObject("PartDesign::Pad", "Pad003")
body9.addObject(pad4)
pad4.Profile = sketch10
pad4.Length = 70
pad4.Reversed = True
doc.recompute()

body10 = doc.addObject("PartDesign::Body", "Body009")
body10.BaseFeature = body9
boolean7 = doc.addObject("PartDesign::Boolean", "Boolean006")
body7.addObject(boolean7)
boolean7.Type = "Cut"
boolean7.addObjects([body10])
doc.recompute()

boolean8 = doc.addObject("PartDesign::Boolean", "Boolean007")
body8.addObject(boolean8)
boolean8.Type = "Cut"
boolean8.addObjects([body9])

doc.recompute()
